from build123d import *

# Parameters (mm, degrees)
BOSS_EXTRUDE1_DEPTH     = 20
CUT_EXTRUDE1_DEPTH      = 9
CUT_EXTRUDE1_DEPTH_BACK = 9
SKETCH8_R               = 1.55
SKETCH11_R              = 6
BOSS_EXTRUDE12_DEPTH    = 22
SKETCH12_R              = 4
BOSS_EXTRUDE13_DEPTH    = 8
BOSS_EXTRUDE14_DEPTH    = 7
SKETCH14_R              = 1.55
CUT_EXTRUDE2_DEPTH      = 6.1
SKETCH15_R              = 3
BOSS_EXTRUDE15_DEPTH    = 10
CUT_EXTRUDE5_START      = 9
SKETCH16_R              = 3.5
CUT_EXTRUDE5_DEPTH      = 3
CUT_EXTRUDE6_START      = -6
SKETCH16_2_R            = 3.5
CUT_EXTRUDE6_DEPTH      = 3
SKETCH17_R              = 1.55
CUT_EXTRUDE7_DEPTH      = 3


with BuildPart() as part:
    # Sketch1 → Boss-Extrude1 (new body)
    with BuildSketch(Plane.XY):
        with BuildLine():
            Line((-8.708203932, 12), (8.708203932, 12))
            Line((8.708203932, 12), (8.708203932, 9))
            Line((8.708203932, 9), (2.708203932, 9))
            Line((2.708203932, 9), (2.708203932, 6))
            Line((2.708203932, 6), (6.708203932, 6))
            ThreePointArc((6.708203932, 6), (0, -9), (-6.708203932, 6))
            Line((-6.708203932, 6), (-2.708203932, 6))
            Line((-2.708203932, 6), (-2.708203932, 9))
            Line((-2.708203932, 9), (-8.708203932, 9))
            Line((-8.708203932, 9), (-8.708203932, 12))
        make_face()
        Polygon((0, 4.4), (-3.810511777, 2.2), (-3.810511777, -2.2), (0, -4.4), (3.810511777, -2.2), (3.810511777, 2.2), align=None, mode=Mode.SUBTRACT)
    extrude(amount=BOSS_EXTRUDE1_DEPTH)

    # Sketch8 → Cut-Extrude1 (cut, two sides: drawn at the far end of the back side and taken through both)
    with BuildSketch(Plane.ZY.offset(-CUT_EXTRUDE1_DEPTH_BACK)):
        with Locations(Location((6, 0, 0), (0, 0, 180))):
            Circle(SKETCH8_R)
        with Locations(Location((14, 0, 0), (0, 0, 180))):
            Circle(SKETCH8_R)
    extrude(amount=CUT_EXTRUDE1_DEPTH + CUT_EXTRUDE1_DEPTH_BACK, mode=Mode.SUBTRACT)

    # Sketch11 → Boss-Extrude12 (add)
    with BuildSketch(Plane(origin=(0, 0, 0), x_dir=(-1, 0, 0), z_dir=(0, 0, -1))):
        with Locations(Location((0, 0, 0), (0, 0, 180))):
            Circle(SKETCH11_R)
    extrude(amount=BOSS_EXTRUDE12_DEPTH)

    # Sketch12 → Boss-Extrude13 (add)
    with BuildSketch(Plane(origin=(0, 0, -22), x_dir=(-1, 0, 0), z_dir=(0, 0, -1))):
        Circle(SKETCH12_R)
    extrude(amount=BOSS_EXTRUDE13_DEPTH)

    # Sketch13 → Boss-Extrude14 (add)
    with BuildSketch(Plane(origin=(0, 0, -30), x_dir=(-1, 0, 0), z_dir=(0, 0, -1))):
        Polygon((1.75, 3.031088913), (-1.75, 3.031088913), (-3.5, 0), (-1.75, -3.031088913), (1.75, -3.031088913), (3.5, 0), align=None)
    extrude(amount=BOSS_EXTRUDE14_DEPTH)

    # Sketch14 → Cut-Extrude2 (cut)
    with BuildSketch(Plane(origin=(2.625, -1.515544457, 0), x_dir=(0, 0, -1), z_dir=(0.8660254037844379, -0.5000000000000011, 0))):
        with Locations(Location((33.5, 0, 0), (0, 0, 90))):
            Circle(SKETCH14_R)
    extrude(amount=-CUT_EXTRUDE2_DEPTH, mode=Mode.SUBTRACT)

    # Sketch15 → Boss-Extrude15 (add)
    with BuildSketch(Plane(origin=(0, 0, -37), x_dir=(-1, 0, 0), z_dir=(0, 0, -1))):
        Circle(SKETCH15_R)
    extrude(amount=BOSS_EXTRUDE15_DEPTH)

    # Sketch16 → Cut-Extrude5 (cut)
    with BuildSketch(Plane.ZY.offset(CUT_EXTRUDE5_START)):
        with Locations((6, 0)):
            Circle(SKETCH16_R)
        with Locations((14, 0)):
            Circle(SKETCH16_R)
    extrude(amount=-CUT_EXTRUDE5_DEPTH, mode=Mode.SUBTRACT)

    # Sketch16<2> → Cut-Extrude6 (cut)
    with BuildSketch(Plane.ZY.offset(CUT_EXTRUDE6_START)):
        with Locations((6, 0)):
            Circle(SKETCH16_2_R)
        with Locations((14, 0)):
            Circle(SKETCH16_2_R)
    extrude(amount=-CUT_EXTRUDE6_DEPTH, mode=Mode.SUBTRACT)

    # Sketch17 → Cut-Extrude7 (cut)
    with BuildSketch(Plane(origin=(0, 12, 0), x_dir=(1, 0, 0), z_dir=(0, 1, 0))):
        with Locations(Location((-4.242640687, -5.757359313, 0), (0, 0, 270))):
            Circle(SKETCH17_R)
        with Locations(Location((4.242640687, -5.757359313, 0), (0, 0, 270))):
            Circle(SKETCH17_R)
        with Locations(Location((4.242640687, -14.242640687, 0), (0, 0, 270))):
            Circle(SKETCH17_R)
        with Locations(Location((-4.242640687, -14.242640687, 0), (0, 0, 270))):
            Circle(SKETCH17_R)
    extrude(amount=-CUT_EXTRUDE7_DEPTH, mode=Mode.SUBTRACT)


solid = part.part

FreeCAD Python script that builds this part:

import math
import FreeCAD as App
import Part
import Sketcher

V = App.Vector
Q = App.Units.Quantity


def add_polygon(sketch, points):
    """Adds a closed chain of lines whose ends are joined by coincident constraints."""
    first, n = sketch.GeometryCount, len(points)
    for a, b in zip(points, points[1:] + points[:1]):
        sketch.addGeometry(Part.LineSegment(App.Vector(*a, 0), App.Vector(*b, 0)), False)
    for i in range(n):
        sketch.addConstraint(Sketcher.Constraint("Coincident", first + i, 2, first + (i + 1) % n, 1))

doc = App.newDocument("Part")
body = doc.addObject("PartDesign::Body", "Body")

# Sketch on XY plane
sketch1 = doc.addObject("Sketcher::SketchObject", "Sketch")
body.addObject(sketch1)
sketch1.AttachmentSupport = (doc.XY_Plane, [""])
sketch1.MapMode = "FlatFace"
sketch1.addGeometry(Part.LineSegment(V(8.708204, 12, 0), V(-8.708204, 12, 0)), False)  # 0
sketch1.addGeometry(Part.LineSegment(V(-8.708204, 12, 0), V(-8.708204, 9, 0)), False)  # 1
sketch1.addGeometry(Part.LineSegment(V(-8.708204, 9, 0), V(-2.708204, 9, 0)), False)  # 2
sketch1.addGeometry(Part.LineSegment(V(-2.708204, 9, 0), V(-2.708204, 6, 0)), False)  # 3
sketch1.addGeometry(Part.LineSegment(V(-2.708204, 6, 0), V(-6.708204, 6, 0)), False)  # 4
sketch1.addGeometry(Part.ArcOfCircle(Part.Circle(V(0, 0, 0), V(0, 0, 1), 9), math.radians(138.189685), math.radians(401.810315)), False)  # 5
sketch1.addGeometry(Part.LineSegment(V(6.708204, 6, 0), V(2.708204, 6, 0)), False)  # 6
sketch1.addGeometry(Part.LineSegment(V(2.708204, 6, 0), V(2.708204, 9, 0)), False)  # 7
sketch1.addGeometry(Part.LineSegment(V(2.708204, 9, 0), V(8.708204, 9, 0)), False)  # 8
sketch1.addGeometry(Part.LineSegment(V(8.708204, 9, 0), V(8.708204, 12, 0)), False)  # 9
add_polygon(sketch1, [(0, 4.4), (3.810512, 2.2), (3.810512, -2.2), (0, -4.4), (-3.810512, -2.2), (-3.810512, 2.2)])  # lines 10-15
sketch1.addConstraint([
    Sketcher.Constraint("Coincident", 0, 2, 1, 1),
    Sketcher.Constraint("Coincident", 1, 2, 2, 1),
    Sketcher.Constraint("Coincident", 2, 2, 3, 1),
    Sketcher.Constraint("Coincident", 3, 2, 4, 1),
    Sketcher.Constraint("Coincident", 4, 2, 5, 1),
    Sketcher.Constraint("Coincident", 5, 2, 6, 1),
    Sketcher.Constraint("Coincident", 6, 2, 7, 1),
    Sketcher.Constraint("Coincident", 7, 2, 8, 1),
    Sketcher.Constraint("Coincident", 8, 2, 9, 1),
    Sketcher.Constraint("Coincident", 9, 2, 0, 1),
    Sketcher.Constraint("Horizontal", 0),
    Sketcher.Constraint("Vertical", 1),
    Sketcher.Constraint("Horizontal", 2),
    Sketcher.Constraint("Vertical", 3),
    Sketcher.Constraint("Horizontal", 4),
    Sketcher.Constraint("Horizontal", 6),
    Sketcher.Constraint("Vertical", 7),
    Sketcher.Constraint("Horizontal", 8),
    Sketcher.Constraint("Vertical", 9),
    Sketcher.Constraint("Vertical", 11),
    Sketcher.Constraint("Vertical", 14),
    Sketcher.Constraint("Coincident", 5, 3, -1, 1),
    Sketcher.Constraint("Symmetric", 10, 2, 13, 2, -1, 1),
    Sketcher.Constraint("Symmetric", 12, 2, 15, 2, -1, 1),
    Sketcher.Constraint("Symmetric", 3, 2, 6, 2, -2),
    Sketcher.Constraint("Symmetric", 1, 2, 8, 2, -2),
    Sketcher.Constraint("PointOnObject", 12, 2, -2),
    Sketcher.Constraint("Parallel", 12, 15),
    Sketcher.Constraint("Horizontal", 11, 2, 13, 2),
    Sketcher.Constraint("Equal", 1, 3),
    Sketcher.Constraint("Radius", 5, Q("9 mm")),
    Sketcher.Constraint("DistanceX", 2, 1, 2, 2, Q("6 mm")),
    Sketcher.Constraint("DistanceX", 4, 2, 4, 1, Q("4 mm")),
    Sketcher.Constraint("DistanceY", 1, 2, 1, 1, Q("3 mm")),
    Sketcher.Constraint("Angle", 10, Q("-30 deg")),
    Sketcher.Constraint("DistanceY", 11, 2, 11, 1, Q("4.4 mm")),
    Sketcher.Constraint("DistanceY", -1, 1, 0, 2, Q("12 mm")),
    Sketcher.Constraint("Distance", 10, Q("4.4 mm")),
])
pad1 = doc.addObject("PartDesign::Pad", "Pad")
body.addObject(pad1)
pad1.Profile = sketch1
pad1.Length = 20

# Sketch on YZ plane
sketch2 = doc.addObject("Sketcher::SketchObject", "Sketch001")
body.addObject(sketch2)
sketch2.AttachmentSupport = (doc.YZ_Plane, [""])
sketch2.MapMode = "FlatFace"
sketch2.addGeometry([
    Part.Circle(V(0, 6, 0), V(0, 0, 1), 1.55),
    Part.Circle(V(0, 14, 0), V(0, 0, 1), 1.55),
], False)
sketch2.addConstraint([
    Sketcher.Constraint("Equal", 0, 1),
    Sketcher.Constraint("PointOnObject", 0, 3, -2),
    Sketcher.Constraint("PointOnObject", 1, 3, -2),
    Sketcher.Constraint("Diameter", 0, Q("3.1 mm")),
    Sketcher.Constraint("DistanceY", -1, 1, 0, 3, Q("6 mm")),
    Sketcher.Constraint("DistanceY", -1, 1, 1, 3, Q("14 mm")),
])
pocket1 = doc.addObject("PartDesign::Pocket", "Pocket")
body.addObject(pocket1)
pocket1.Profile = sketch2
pocket1.Type = "ThroughAll"
pocket1.Midplane = True

# Sketch on XY plane
sketch3 = doc.addObject("Sketcher::SketchObject", "Sketch002")
body.addObject(sketch3)
sketch3.AttachmentSupport = (doc.XY_Plane, [""])
sketch3.MapMode = "FlatFace"
sketch3.addGeometry(Part.Circle(V(0, 0, 0), V(0, 0, 1), 6), False)
sketch3.addConstraint([
    Sketcher.Constraint("Coincident", 0, 3, -1, 1),
    Sketcher.Constraint("Diameter", 0, Q("12 mm")),
])
pad2 = doc.addObject("PartDesign::Pad", "Pad001")
body.addObject(pad2)
pad2.Profile = sketch3
pad2.Length = 22
pad2.Reversed = True

# Sketch on XY plane
sketch4 = doc.addObject("Sketcher::SketchObject", "Sketch003")
body.addObject(sketch4)
sketch4.AttachmentSupport = (doc.XY_Plane, [""])
sketch4.MapMode = "FlatFace"
sketch4.AttachmentOffset = App.Placement(V(0, 0, -22), App.Rotation())
sketch4.addGeometry(Part.Circle(V(0, 0, 0), V(0, 0, 1), 4), False)
sketch4.addConstraint([
    Sketcher.Constraint("Coincident", 0, 3, -1, 1),
    Sketcher.Constraint("Diameter", 0, Q("8 mm")),
])
pad3 = doc.addObject("PartDesign::Pad", "Pad002")
body.addObject(pad3)
pad3.Profile = sketch4
pad3.Length = 8
pad3.Reversed = True

# Sketch on XY plane
sketch5 = doc.addObject("Sketcher::SketchObject", "Sketch004")
body.addObject(sketch5)
sketch5.AttachmentSupport = (doc.XY_Plane, [""])
sketch5.MapMode = "FlatFace"
sketch5.AttachmentOffset = App.Placement(V(0, 0, -30), App.Rotation())
add_polygon(sketch5, [(-1.75, 3.031089), (1.75, 3.031089), (3.5, 0), (1.75, -3.031089), (-1.75, -3.031089), (-3.5, 0)])  # lines 0-5
sketch5.addConstraint([
    Sketcher.Constraint("Horizontal", 0),
    Sketcher.Constraint("Horizontal", 3),
    Sketcher.Constraint("Symmetric", 0, 2, 3, 2, -1, 1),
    Sketcher.Constraint("Symmetric", 1, 2, 4, 2, -1, 1),
    Sketcher.Constraint("PointOnObject", 1, 2, -1),
    Sketcher.Constraint("Parallel", 2, 5),
    Sketcher.Constraint("Vertical", 0, 2, 2, 2),
    Sketcher.Constraint("Angle", 1, Q("-60 deg")),
    Sketcher.Constraint("DistanceX", 0, 1, 0, 2, Q("3.5 mm")),
    Sketcher.Constraint("DistanceX", 4, 2, 1, 2, Q("7 mm")),
])
pad4 = doc.addObject("PartDesign::Pad", "Pad003")
body.addObject(pad4)
pad4.Profile = sketch5
pad4.Length = 7
pad4.Reversed = True

# Sketch on an angled plane
sketch6 = doc.addObject("Sketcher::SketchObject", "Sketch005")
body.addObject(sketch6)
sketch6.Placement = App.Placement(V(2.625, -1.515544, 0), App.Rotation(V(0, 0, -1), V(0.5, 0.866025404, 0), V(0.866025404, -0.5, 0), "ZXY"))
sketch6.addGeometry(Part.Circle(V(33.5, 0, 0), V(0, 0, 1), 1.55), False)
sketch6.addConstraint([
    Sketcher.Constraint("PointOnObject", 0, 3, -1),
    Sketcher.Constraint("Diameter", 0, Q("3.1 mm")),
    Sketcher.Constraint("DistanceX", -1, 1, 0, 3, Q("33.5 mm")),
])
pocket2 = doc.addObject("PartDesign::Pocket", "Pocket001")
body.addObject(pocket2)
pocket2.Profile = sketch6
pocket2.Length = 6.1

# Sketch on XY plane
sketch7 = doc.addObject("Sketcher::SketchObject", "Sketch006")
body.addObject(sketch7)
sketch7.AttachmentSupport = (doc.XY_Plane, [""])
sketch7.MapMode = "FlatFace"
sketch7.AttachmentOffset = App.Placement(V(0, 0, -37), App.Rotation())
sketch7.addGeometry(Part.Circle(V(0, 0, 0), V(0, 0, 1), 3), False)
sketch7.addConstraint([
    Sketcher.Constraint("Coincident", 0, 3, -1, 1),
    Sketcher.Constraint("Diameter", 0, Q("6 mm")),
])
pad5 = doc.addObject("PartDesign::Pad", "Pad004")
body.addObject(pad5)
pad5.Profile = sketch7
pad5.Length = 10
pad5.Reversed = True

# Sketch on YZ plane
sketch8 = doc.addObject("Sketcher::SketchObject", "Sketch007")
body.addObject(sketch8)
sketch8.AttachmentSupport = (doc.YZ_Plane, [""])
sketch8.MapMode = "FlatFace"
sketch8.AttachmentOffset = App.Placement(V(0, 0, -9), App.Rotation())
sketch8.addGeometry([
    Part.Circle(V(0, 6, 0), V(0, 0, 1), 3.5),
    Part.Circle(V(0, 14, 0), V(0, 0, 1), 3.5),
], False)
sketch8.addConstraint([
    Sketcher.Constraint("Equal", 0, 1),
    Sketcher.Constraint("PointOnObject", 0, 3, -2),
    Sketcher.Constraint("PointOnObject", 1, 3, -2),
    Sketcher.Constraint("Diameter", 0, Q("7 mm")),
    Sketcher.Constraint("DistanceY", -1, 1, 0, 3, Q("6 mm")),
    Sketcher.Constraint("DistanceY", -1, 1, 1, 3, Q("14 mm")),
])
pocket3 = doc.addObject("PartDesign::Pocket", "Pocket002")
body.addObject(pocket3)
pocket3.Profile = sketch8
pocket3.Length = 3
pocket3.Reversed = True

# Sketch on YZ plane
sketch9 = doc.addObject("Sketcher::SketchObject", "Sketch008")
body.addObject(sketch9)
sketch9.AttachmentSupport = (doc.YZ_Plane, [""])
sketch9.MapMode = "FlatFace"
sketch9.AttachmentOffset = App.Placement(V(0, 0, 6), App.Rotation())
sketch9.addGeometry([
    Part.Circle(V(0, 6, 0), V(0, 0, 1), 3.5),
    Part.Circle(V(0, 14, 0), V(0, 0, 1), 3.5),
], False)
sketch9.addConstraint([
    Sketcher.Constraint("Equal", 0, 1),
    Sketcher.Constraint("PointOnObject", 0, 3, -2),
    Sketcher.Constraint("PointOnObject", 1, 3, -2),
    Sketcher.Constraint("Diameter", 0, Q("7 mm")),
    Sketcher.Constraint("DistanceY", -1, 1, 0, 3, Q("6 mm")),
    Sketcher.Constraint("DistanceY", -1, 1, 1, 3, Q("14 mm")),
])
pocket4 = doc.addObject("PartDesign::Pocket", "Pocket003")
body.addObject(pocket4)
pocket4.Profile = sketch9
pocket4.Length = 3
pocket4.Reversed = True

# Sketch on XZ plane
sketch10 = doc.addObject("Sketcher::SketchObject", "Sketch009")
body.addObject(sketch10)
sketch10.AttachmentSupport = (doc.XZ_Plane, [""])
sketch10.MapMode = "FlatFace"
sketch10.AttachmentOffset = App.Placement(V(0, 0, -12), App.Rotation())
sketch10.addGeometry([
    Part.Circle(V(-4.242641, 5.757359, 0), V(0, 0, 1), 1.55),
    Part.Circle(V(4.242641, 5.757359, 0), V(0, 0, 1), 1.55),
    Part.Circle(V(4.242641, 14.242641, 0), V(0, 0, 1), 1.55),
    Part.Circle(V(-4.242641, 14.242641, 0), V(0, 0, 1), 1.55),
], False)
sketch10.addConstraint([
    Sketcher.Constraint("Equal", 0, 1),
    Sketcher.Constraint("Equal", 1, 2),
    Sketcher.Constraint("Equal", 2, 3),
    Sketcher.Constraint("Symmetric", 0, 3, 1, 3, -2),
    Sketcher.Constraint("Symmetric", 2, 3, 3, 3, -2),
    Sketcher.Constraint("Vertical", 1, 3, 2, 3),
    Sketcher.Constraint("Diameter", 0, Q("3.1 mm")),
    Sketcher.Constraint("DistanceX", 0, 3, -1, 1, Q("4.242641 mm")),
    Sketcher.Constraint("DistanceY", -1, 1, 0, 3, Q("5.757359 mm")),
    Sketcher.Constraint("DistanceY", -1, 1, 2, 3, Q("14.242641 mm")),
])
pocket5 = doc.addObject("PartDesign::Pocket", "Pocket004")
body.addObject(pocket5)
pocket5.Profile = sketch10
pocket5.Length = 3
pocket5.Reversed = True

doc.recompute()
